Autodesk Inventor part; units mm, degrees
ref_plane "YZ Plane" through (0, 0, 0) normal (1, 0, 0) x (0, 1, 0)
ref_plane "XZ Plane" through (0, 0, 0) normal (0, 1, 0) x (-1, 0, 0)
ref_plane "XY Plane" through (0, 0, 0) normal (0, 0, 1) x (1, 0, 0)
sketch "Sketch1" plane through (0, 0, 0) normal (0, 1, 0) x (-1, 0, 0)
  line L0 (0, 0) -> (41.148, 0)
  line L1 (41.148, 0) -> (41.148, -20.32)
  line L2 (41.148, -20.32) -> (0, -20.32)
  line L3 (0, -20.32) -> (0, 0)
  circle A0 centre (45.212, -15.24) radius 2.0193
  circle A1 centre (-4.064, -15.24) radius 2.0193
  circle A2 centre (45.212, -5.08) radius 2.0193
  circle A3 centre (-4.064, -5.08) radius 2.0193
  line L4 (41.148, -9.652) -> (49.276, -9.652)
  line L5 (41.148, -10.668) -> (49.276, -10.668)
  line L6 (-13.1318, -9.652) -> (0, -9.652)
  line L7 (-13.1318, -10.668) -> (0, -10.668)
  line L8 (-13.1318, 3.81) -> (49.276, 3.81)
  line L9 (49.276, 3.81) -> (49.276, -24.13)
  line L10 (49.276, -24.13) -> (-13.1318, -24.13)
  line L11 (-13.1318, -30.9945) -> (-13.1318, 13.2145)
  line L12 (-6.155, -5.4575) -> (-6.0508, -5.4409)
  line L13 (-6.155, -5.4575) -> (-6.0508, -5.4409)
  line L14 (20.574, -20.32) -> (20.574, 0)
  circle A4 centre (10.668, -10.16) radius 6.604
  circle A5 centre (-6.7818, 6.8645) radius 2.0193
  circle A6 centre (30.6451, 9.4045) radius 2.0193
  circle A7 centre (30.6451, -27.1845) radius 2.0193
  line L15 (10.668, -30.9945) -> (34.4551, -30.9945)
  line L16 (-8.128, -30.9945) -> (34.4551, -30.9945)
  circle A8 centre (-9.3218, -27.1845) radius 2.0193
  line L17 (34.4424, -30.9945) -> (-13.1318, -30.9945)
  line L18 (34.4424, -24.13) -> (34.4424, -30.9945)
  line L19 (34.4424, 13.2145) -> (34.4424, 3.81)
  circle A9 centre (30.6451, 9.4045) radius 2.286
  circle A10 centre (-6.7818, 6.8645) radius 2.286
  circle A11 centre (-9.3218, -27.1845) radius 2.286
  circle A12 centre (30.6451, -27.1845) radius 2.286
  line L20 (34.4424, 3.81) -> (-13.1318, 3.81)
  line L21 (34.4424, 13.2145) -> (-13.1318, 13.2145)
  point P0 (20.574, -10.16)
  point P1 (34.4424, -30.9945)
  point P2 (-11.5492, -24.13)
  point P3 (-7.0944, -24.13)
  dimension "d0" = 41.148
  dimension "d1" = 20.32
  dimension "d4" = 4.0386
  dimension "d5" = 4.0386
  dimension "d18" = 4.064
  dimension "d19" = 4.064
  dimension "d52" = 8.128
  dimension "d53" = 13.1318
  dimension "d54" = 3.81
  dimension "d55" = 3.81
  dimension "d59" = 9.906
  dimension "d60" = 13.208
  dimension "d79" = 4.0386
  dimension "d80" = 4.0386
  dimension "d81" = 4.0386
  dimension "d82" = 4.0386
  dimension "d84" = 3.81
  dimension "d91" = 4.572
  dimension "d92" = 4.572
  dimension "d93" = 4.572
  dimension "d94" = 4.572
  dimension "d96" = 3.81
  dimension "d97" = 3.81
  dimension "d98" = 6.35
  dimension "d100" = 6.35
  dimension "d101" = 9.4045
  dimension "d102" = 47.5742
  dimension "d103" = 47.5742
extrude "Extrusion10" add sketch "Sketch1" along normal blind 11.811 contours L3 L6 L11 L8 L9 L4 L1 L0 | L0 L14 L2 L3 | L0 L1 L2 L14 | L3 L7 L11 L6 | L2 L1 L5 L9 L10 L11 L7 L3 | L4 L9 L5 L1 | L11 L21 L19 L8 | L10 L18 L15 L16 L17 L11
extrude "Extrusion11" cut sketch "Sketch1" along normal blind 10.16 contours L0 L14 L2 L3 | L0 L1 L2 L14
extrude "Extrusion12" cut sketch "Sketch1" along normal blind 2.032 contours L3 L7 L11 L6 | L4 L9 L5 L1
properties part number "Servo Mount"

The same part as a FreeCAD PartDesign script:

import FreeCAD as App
import Part
import Sketcher

V = App.Vector
Q = App.Units.Quantity

doc = App.newDocument("Part")
params = doc.addObject("Spreadsheet::Sheet", "Params")
for row, (alias, value) in enumerate([
    ("sketch1_diameter", "0.52 in"),
    ("sketch1_diameter2", "0.18 in"),
    ("sketch1_diameter3", "0.159 in"),
    ("sketch1_width", "1.873 in"),
    ("sketch1_height", "1.1 in"),
    ("pad1_length", "0.465 in"),
    ("sketch2_diameter", "0.52 in"),
    ("sketch2_height", "0.8 in"),
    ("sketch2_width", "1.62 in"),
    ("pocket1_length", "0.4 in"),
    ("sketch3_width", "0.32 in"),
    ("sketch3_width2", "0.517 in"),
    ("sketch3_height", "0.04 in"),
    ("pocket2_length", "0.08 in"),
], start=1):
    params.set(f"A{row}", alias)
    params.set(f"B{row}", "=" + value)
    params.setAlias(f"B{row}", alias)

body = doc.addObject("PartDesign::Body", "Body")

sketch1 = body.newObject("Sketcher::SketchObject", "Sketch")
sketch1.AttachmentSupport = (doc.getObject("XZ_Plane"), [""])
sketch1.MapMode = "FlatFace"
sketch1.addGeometry([
    Part.LineSegment(V(13.1, -31, 0), V(-34.4, -31, 0)),
    Part.LineSegment(V(-34.4, -31, 0), V(-34.4, -24.1, 0)),
    Part.LineSegment(V(-34.4, -24.1, 0), V(-49.3, -24.1, 0)),
    Part.LineSegment(V(-49.3, -24.1, 0), V(-49.3, 3.8, 0)),
    Part.LineSegment(V(-49.3, 3.8, 0), V(-34.4, 3.8, 0)),
    Part.LineSegment(V(-34.4, 3.8, 0), V(-34.4, 13.2, 0)),
    Part.LineSegment(V(-34.4, 13.2, 0), V(13.1, 13.2, 0)),
    Part.LineSegment(V(13.1, 13.2, 0), V(13.1, -31, 0)),
    Part.Circle(V(4.1, -5.1, 0), V(0, 0, 1), 2),
    Part.Circle(V(-45.2, -5.1, 0), V(0, 0, 1), 2),
    Part.Circle(V(-10.7, -10.2, 0), V(0, 0, 1), 6.6),
    Part.Circle(V(-30.6, 9.4, 0), V(0, 0, 1), 2.3),
    Part.Circle(V(6.8, 6.9, 0), V(0, 0, 1), 2.3),
    Part.Circle(V(-45.2, -15.2, 0), V(0, 0, 1), 2),
    Part.Circle(V(4.1, -15.2, 0), V(0, 0, 1), 2),
    Part.Circle(V(-30.6, -27.2, 0), V(0, 0, 1), 2.3),
    Part.Circle(V(9.3, -27.2, 0), V(0, 0, 1), 2.3),
], False)
sketch1.addConstraint([
    Sketcher.Constraint("Coincident", 0, 2, 1, 1),
    Sketcher.Constraint("Coincident", 1, 2, 2, 1),
    Sketcher.Constraint("Coincident", 2, 2, 3, 1),
    Sketcher.Constraint("Coincident", 3, 2, 4, 1),
    Sketcher.Constraint("Coincident", 4, 2, 5, 1),
    Sketcher.Constraint("Coincident", 5, 2, 6, 1),
    Sketcher.Constraint("Coincident", 6, 2, 7, 1),
    Sketcher.Constraint("Coincident", 7, 2, 0, 1),
    Sketcher.Constraint("Horizontal", 0),
    Sketcher.Constraint("Vertical", 1),
    Sketcher.Constraint("Horizontal", 2),
    Sketcher.Constraint("Vertical", 3),
    Sketcher.Constraint("Horizontal", 4),
    Sketcher.Constraint("Vertical", 5),
    Sketcher.Constraint("Horizontal", 6),
    Sketcher.Constraint("Vertical", 7),
    Sketcher.Constraint("Equal", 8, 9),
    Sketcher.Constraint("Equal", 11, 12),
    Sketcher.Constraint("Equal", 9, 13),
    Sketcher.Constraint("Equal", 13, 14),
    Sketcher.Constraint("Equal", 12, 15),
    Sketcher.Constraint("Equal", 15, 16),
    Sketcher.Constraint("Horizontal", 8, 3, 9, 3),
    Sketcher.Constraint("Horizontal", 13, 3, 14, 3),
    Sketcher.Constraint("Horizontal", 15, 3, 16, 3),
    Sketcher.Constraint("Vertical", 9, 3, 13, 3),
    Sketcher.Constraint("Vertical", 8, 3, 14, 3),
    Sketcher.Constraint("Vertical", 11, 3, 15, 3),
    Sketcher.Constraint("Vertical", 1, 2, 4, 2),
    Sketcher.Constraint("Diameter", 10, Q("0.52 in")),
    Sketcher.Constraint("Diameter", 11, Q("0.18 in")),
    Sketcher.Constraint("Diameter", 8, Q("0.159 in")),
    Sketcher.Constraint("DistanceX", 0, 2, 0, 1, Q("1.873 in")),
    Sketcher.Constraint("DistanceX", -1, 1, 8, 3, Q("0.16 in")),
    Sketcher.Constraint("DistanceY", -1, 1, 3, 2, Q("0.15 in")),
    Sketcher.Constraint("DistanceY", 0, 2, 15, 3, Q("0.15 in")),
    Sketcher.Constraint("DistanceX", 2, 2, 13, 3, Q("0.16 in")),
    Sketcher.Constraint("DistanceY", 11, 3, 5, 2, Q("0.15 in")),
    Sketcher.Constraint("DistanceX", 12, 3, 6, 2, Q("0.25 in")),
    Sketcher.Constraint("DistanceY", 12, 3, 6, 2, Q("0.25 in")),
    Sketcher.Constraint("DistanceX", 16, 3, 6, 2, Q("0.15 in")),
    Sketcher.Constraint("DistanceY", 3, 1, 3, 2, Q("1.1 in")),
    Sketcher.Constraint("DistanceX", -1, 1, 6, 2, Q("0.517 in")),
    Sketcher.Constraint("DistanceY", 5, 1, 5, 2, 9.4045),
    Sketcher.Constraint("DistanceY", 8, 3, -1, 1, Q("0.2 in")),
    Sketcher.Constraint("DistanceY", 10, 3, -1, 1, Q("0.4 in")),
    Sketcher.Constraint("DistanceY", 13, 3, -1, 1, Q("0.6 in")),
    Sketcher.Constraint("DistanceX", 2, 2, 2, 1, Q("0.584 in")),
    Sketcher.Constraint("DistanceX", 10, 3, -1, 1, Q("0.42 in")),
    Sketcher.Constraint("DistanceY", 7, 2, 7, 1, Q("1.7405 in")),
    Sketcher.Constraint("DistanceX", 11, 3, -1, 1, Q("1.2065 in")),
])
sketch1.setExpression("Constraints[29]", "Params.sketch1_diameter")
sketch1.setExpression("Constraints[30]", "Params.sketch1_diameter2")
sketch1.setExpression("Constraints[31]", "Params.sketch1_diameter3")
sketch1.setExpression("Constraints[32]", "Params.sketch1_width")
sketch1.setExpression("Constraints[41]", "Params.sketch1_height")
pad1 = body.newObject("PartDesign::Pad", "Pad")
pad1.Profile = sketch1
pad1.setExpression("Length", "Params.pad1_length")
pad1.Reversed = True

sketch2 = body.newObject("Sketcher::SketchObject", "Sketch001")
sketch2.AttachmentSupport = (doc.getObject("XZ_Plane"), [""])
sketch2.MapMode = "FlatFace"
sketch2.addGeometry([
    Part.LineSegment(V(0, 0, 0), V(0, -20, 0)),
    Part.LineSegment(V(0, -20, 0), V(-41, -20, 0)),
    Part.LineSegment(V(-41, -20, 0), V(-41, 0, 0)),
    Part.LineSegment(V(-41, 0, 0), V(0, 0, 0)),
    Part.Circle(V(-11, -10, 0), V(0, 0, 1), 7),
], False)
sketch2.addConstraint([
    Sketcher.Constraint("Coincident", 0, 2, 1, 1),
    Sketcher.Constraint("Coincident", 1, 2, 2, 1),
    Sketcher.Constraint("Coincident", 2, 2, 3, 1),
    Sketcher.Constraint("Coincident", 3, 2, 0, 1),
    Sketcher.Constraint("Vertical", 0),
    Sketcher.Constraint("Horizontal", 1),
    Sketcher.Constraint("Vertical", 2),
    Sketcher.Constraint("Horizontal", 3),
    Sketcher.Constraint("Coincident", 3, 2, -1, 1),
    Sketcher.Constraint("Diameter", 4, Q("0.52 in")),
    Sketcher.Constraint("DistanceY", 0, 2, 0, 1, Q("0.8 in")),
    Sketcher.Constraint("DistanceX", 1, 2, 1, 1, Q("1.62 in")),
    Sketcher.Constraint("DistanceY", 4, 3, -1, 1, Q("0.4 in")),
    Sketcher.Constraint("DistanceX", 1, 2, 4, 3, Q("1.2 in")),
])
sketch2.setExpression("Constraints[9]", "Params.sketch2_diameter")
sketch2.setExpression("Constraints[10]", "Params.sketch2_height")
sketch2.setExpression("Constraints[11]", "Params.sketch2_width")
pocket1 = body.newObject("PartDesign::Pocket", "Pocket")
pocket1.Profile = sketch2
pocket1.setExpression("Length", "Params.pocket1_length")

sketch3 = body.newObject("Sketcher::SketchObject", "Sketch002")
sketch3.AttachmentSupport = (doc.getObject("XZ_Plane"), [""])
sketch3.MapMode = "FlatFace"
sketch3.addGeometry([
    Part.LineSegment(V(0, -10.7, 0), V(0, -9.7, 0)),
    Part.LineSegment(V(0, -9.7, 0), V(13.1, -9.7, 0)),
    Part.LineSegment(V(13.1, -9.7, 0), V(13.1, -10.7, 0)),
    Part.LineSegment(V(13.1, -10.7, 0), V(0, -10.7, 0)),
    Part.LineSegment(V(-49.3, -9.7, 0), V(-41.1, -9.7, 0)),
    Part.LineSegment(V(-41.1, -9.7, 0), V(-41.1, -10.7, 0)),
    Part.LineSegment(V(-41.1, -10.7, 0), V(-49.3, -10.7, 0)),
    Part.LineSegment(V(-49.3, -10.7, 0), V(-49.3, -9.7, 0)),
], False)
sketch3.addConstraint([
    Sketcher.Constraint("Coincident", 0, 2, 1, 1),
    Sketcher.Constraint("Coincident", 1, 2, 2, 1),
    Sketcher.Constraint("Coincident", 2, 2, 3, 1),
    Sketcher.Constraint("Coincident", 3, 2, 0, 1),
    Sketcher.Constraint("Coincident", 4, 2, 5, 1),
    Sketcher.Constraint("Coincident", 5, 2, 6, 1),
    Sketcher.Constraint("Coincident", 6, 2, 7, 1),
    Sketcher.Constraint("Coincident", 7, 2, 4, 1),
    Sketcher.Constraint("Vertical", 0),
    Sketcher.Constraint("Horizontal", 1),
    Sketcher.Constraint("Vertical", 2),
    Sketcher.Constraint("Horizontal", 3),
    Sketcher.Constraint("Horizontal", 4),
    Sketcher.Constraint("Vertical", 5),
    Sketcher.Constraint("Horizontal", 6),
    Sketcher.Constraint("Vertical", 7),
    Sketcher.Constraint("PointOnObject", 0, 2, -2),
    Sketcher.Constraint("Horizontal", 1, 2, 4, 2),
    Sketcher.Constraint("Horizontal", 3, 2, 5, 2),
    Sketcher.Constraint("DistanceX", 4, 1, 4, 2, Q("0.32 in")),
    Sketcher.Constraint("DistanceX", 1, 1, 1, 2, Q("0.517 in")),
    Sketcher.Constraint("DistanceX", 4, 2, -1, 1, Q("1.62 in")),
    Sketcher.Constraint("DistanceY", 0, 1, 0, 2, Q("0.04 in")),
    Sketcher.Constraint("DistanceY", 0, 2, -1, 1, Q("0.38 in")),
])
sketch3.setExpression("Constraints[19]", "Params.sketch3_width")
sketch3.setExpression("Constraints[20]", "Params.sketch3_width2")
sketch3.setExpression("Constraints[22]", "Params.sketch3_height")
pocket2 = body.newObject("PartDesign::Pocket", "Pocket001")
pocket2.Profile = sketch3
pocket2.setExpression("Length", "Params.pocket2_length")

doc.recompute()
